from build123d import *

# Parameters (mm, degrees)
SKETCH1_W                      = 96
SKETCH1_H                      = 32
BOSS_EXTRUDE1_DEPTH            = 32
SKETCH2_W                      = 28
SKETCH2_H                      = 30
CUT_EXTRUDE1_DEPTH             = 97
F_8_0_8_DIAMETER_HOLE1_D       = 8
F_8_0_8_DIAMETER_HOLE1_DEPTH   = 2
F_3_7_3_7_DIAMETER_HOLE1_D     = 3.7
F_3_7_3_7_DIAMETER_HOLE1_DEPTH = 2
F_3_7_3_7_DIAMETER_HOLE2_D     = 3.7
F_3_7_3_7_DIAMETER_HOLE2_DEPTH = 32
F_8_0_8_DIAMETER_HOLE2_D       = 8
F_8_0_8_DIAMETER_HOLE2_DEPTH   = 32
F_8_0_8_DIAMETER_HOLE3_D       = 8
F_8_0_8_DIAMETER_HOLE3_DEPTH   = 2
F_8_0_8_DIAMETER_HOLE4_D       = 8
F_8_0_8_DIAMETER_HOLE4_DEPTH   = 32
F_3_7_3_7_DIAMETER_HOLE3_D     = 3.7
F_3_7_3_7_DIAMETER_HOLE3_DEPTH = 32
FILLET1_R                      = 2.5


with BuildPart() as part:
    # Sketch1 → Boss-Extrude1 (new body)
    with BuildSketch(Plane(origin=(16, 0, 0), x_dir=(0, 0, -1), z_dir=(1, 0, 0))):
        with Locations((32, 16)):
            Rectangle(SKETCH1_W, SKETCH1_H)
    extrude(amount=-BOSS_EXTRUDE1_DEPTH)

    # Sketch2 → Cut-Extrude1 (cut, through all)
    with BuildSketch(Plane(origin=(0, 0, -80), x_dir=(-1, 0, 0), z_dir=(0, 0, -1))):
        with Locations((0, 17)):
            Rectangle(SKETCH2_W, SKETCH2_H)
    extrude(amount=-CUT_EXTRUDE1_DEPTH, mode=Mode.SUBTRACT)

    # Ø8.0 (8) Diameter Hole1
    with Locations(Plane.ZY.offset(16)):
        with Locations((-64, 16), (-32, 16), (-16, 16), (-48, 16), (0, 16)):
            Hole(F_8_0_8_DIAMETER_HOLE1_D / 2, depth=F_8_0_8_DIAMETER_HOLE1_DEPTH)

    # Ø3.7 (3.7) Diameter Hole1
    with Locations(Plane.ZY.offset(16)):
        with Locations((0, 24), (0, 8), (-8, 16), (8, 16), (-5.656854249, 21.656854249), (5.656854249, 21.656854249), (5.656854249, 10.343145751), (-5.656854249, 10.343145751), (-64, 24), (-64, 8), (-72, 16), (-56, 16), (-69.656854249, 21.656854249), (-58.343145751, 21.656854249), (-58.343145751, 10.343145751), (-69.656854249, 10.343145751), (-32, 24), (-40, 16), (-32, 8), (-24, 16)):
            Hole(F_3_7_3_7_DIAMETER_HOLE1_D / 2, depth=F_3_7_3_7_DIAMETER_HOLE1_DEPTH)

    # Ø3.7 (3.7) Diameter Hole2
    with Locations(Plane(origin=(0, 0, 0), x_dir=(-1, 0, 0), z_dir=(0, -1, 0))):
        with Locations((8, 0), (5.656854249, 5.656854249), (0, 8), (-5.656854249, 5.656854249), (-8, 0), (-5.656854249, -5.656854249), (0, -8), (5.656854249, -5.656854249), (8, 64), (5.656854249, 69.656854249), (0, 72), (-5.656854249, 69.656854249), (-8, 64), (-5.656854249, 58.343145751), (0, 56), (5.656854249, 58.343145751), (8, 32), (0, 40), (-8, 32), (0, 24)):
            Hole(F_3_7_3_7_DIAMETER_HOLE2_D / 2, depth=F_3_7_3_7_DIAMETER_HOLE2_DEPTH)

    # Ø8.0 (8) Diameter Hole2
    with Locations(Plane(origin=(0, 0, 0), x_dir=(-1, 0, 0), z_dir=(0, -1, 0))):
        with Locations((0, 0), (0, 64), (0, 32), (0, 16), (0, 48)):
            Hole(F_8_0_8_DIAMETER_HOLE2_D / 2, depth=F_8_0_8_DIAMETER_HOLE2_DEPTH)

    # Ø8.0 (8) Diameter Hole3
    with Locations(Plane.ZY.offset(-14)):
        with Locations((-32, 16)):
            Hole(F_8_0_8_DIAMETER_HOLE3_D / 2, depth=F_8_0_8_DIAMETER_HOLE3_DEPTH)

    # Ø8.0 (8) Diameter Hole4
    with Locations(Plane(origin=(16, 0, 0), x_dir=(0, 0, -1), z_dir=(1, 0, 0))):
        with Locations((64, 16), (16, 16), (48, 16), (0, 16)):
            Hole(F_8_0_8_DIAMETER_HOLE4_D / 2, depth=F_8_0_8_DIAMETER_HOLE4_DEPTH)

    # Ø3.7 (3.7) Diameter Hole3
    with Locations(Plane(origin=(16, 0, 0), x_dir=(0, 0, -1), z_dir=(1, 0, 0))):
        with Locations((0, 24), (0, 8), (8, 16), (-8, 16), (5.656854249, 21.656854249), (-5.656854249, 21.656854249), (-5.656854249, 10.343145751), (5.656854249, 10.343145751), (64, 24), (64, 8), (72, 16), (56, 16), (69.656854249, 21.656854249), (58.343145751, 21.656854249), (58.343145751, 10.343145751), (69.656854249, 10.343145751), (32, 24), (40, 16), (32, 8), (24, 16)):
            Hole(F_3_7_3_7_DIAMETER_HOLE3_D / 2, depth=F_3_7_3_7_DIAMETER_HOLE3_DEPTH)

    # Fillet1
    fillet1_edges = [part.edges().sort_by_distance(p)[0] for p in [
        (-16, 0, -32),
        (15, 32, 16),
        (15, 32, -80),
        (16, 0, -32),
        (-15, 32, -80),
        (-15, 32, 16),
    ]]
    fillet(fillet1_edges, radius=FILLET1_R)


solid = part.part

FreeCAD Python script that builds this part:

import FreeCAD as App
import Part
import Sketcher

V = App.Vector
Q = App.Units.Quantity


def edges_at(feature, points):
    """Names of the edges that pass closest to the given points."""
    edges = feature.Shape.Edges
    near = lambda p: min(range(len(edges)), key=lambda i: edges[i].distToShape(Part.Vertex(*p))[0])
    return sorted({f"Edge{near(p) + 1}" for p in points})


def add_polygon(sketch, points):
    """Adds a closed chain of lines whose ends are joined by coincident constraints."""
    first, n = sketch.GeometryCount, len(points)
    for a, b in zip(points, points[1:] + points[:1]):
        sketch.addGeometry(Part.LineSegment(App.Vector(*a, 0), App.Vector(*b, 0)), False)
    for i in range(n):
        sketch.addConstraint(Sketcher.Constraint("Coincident", first + i, 2, first + (i + 1) % n, 1))

doc = App.newDocument("Part")
params = doc.addObject("Spreadsheet::Sheet", "Params")
for row, (alias, value) in enumerate([
    ("sketch1_width", "32 mm"),
    ("sketch1_height", "96 mm"),
    ("pad1_length", "32 mm"),
    ("sketch2_width", "28 mm"),
    ("sketch2_height", "30 mm"),
    ("sketch3_diameter", "8 mm"),
    ("hole_diameter", "8 mm"),
    ("hole_depth", "2 mm"),
    ("sketch4_diameter", "3.7 mm"),
    ("hole2_diameter", "3.7 mm"),
    ("hole2_depth", "2 mm"),
    ("sketch5_diameter", "3.7 mm"),
    ("hole3_diameter", "3.7 mm"),
    ("hole3_depth", "32 mm"),
    ("sketch6_diameter", "8 mm"),
    ("hole4_diameter", "8 mm"),
    ("hole4_depth", "32 mm"),
    ("sketch7_diameter", "8 mm"),
    ("hole5_diameter", "8 mm"),
    ("hole5_depth", "2 mm"),
    ("sketch8_diameter", "8 mm"),
    ("hole6_diameter", "8 mm"),
    ("hole6_depth", "32 mm"),
    ("sketch9_diameter", "3.7 mm"),
    ("hole7_diameter", "3.7 mm"),
    ("hole7_depth", "32 mm"),
    ("fillet_radius", "2.5 mm"),
], start=1):
    params.set(f"A{row}", alias)
    params.set(f"B{row}", "=" + value)
    params.setAlias(f"B{row}", alias)

body = doc.addObject("PartDesign::Body", "Body")

sketch1 = doc.addObject("Sketcher::SketchObject", "Sketch")
body.addObject(sketch1)
sketch1.AttachmentSupport = (doc.YZ_Plane, [""])
sketch1.MapMode = "FlatFace"
sketch1.AttachmentOffset = App.Placement(V(0, 0, 16), App.Rotation())
add_polygon(sketch1, [(32, 16), (0, 16), (0, -80), (32, -80)])
sketch1.addConstraint(Sketcher.Constraint("Horizontal", 0))
sketch1.addConstraint(Sketcher.Constraint("Vertical", 1))
sketch1.addConstraint(Sketcher.Constraint("Horizontal", 2))
sketch1.addConstraint(Sketcher.Constraint("Vertical", 3))
sketch1.addConstraint(Sketcher.Constraint("PointOnObject", 0, 2, -2))
sketch1.addConstraint(Sketcher.Constraint("DistanceX", 0, 2, 0, 1, Q("32 mm")))
sketch1.addConstraint(Sketcher.Constraint("DistanceY", 1, 2, 1, 1, Q("96 mm")))
sketch1.addConstraint(Sketcher.Constraint("DistanceY", -1, 1, 0, 2, Q("16 mm")))
sketch1.setExpression("Constraints[9]", "Params.sketch1_width")
sketch1.setExpression("Constraints[10]", "Params.sketch1_height")
pad1 = doc.addObject("PartDesign::Pad", "Pad")
body.addObject(pad1)
pad1.Profile = sketch1
pad1.setExpression("Length", "Params.pad1_length")
pad1.Reversed = True

sketch2 = doc.addObject("Sketcher::SketchObject", "Sketch001")
body.addObject(sketch2)
sketch2.AttachmentSupport = (doc.XY_Plane, [""])
sketch2.MapMode = "FlatFace"
sketch2.AttachmentOffset = App.Placement(V(0, 0, -80), App.Rotation())
add_polygon(sketch2, [(14, 32), (14, 2), (-14, 2), (-14, 32)])
sketch2.addConstraint(Sketcher.Constraint("Vertical", 0))
sketch2.addConstraint(Sketcher.Constraint("Horizontal", 1))
sketch2.addConstraint(Sketcher.Constraint("Vertical", 2))
sketch2.addConstraint(Sketcher.Constraint("Horizontal", 3))
sketch2.addConstraint(Sketcher.Constraint("DistanceX", 1, 2, 1, 1, Q("28 mm")))
sketch2.addConstraint(Sketcher.Constraint("DistanceY", 0, 2, 0, 1, Q("30 mm")))
sketch2.addConstraint(Sketcher.Constraint("DistanceX", -1, 1, 0, 2, Q("14 mm")))
sketch2.addConstraint(Sketcher.Constraint("DistanceY", -1, 1, 0, 2, Q("2 mm")))
sketch2.setExpression("Constraints[8]", "Params.sketch2_width")
sketch2.setExpression("Constraints[9]", "Params.sketch2_height")
pocket1 = doc.addObject("PartDesign::Pocket", "Pocket")
body.addObject(pocket1)
pocket1.Profile = sketch2
pocket1.Type = "ThroughAll"
pocket1.Reversed = True

sketch3 = doc.addObject("Sketcher::SketchObject", "Sketch002")
body.addObject(sketch3)
sketch3.AttachmentSupport = (doc.YZ_Plane, [""])
sketch3.MapMode = "FlatFace"
sketch3.AttachmentOffset = App.Placement(V(0, 0, -16), App.Rotation())
sketch3.addGeometry(Part.Circle(V(16, -64, 0), V(0, 0, 1), 4), False)
sketch3.addGeometry(Part.Circle(V(16, -32, 0), V(0, 0, 1), 4), False)
sketch3.addGeometry(Part.Circle(V(16, -16, 0), V(0, 0, 1), 4), False)
sketch3.addGeometry(Part.Circle(V(16, -48, 0), V(0, 0, 1), 4), False)
sketch3.addGeometry(Part.Circle(V(16, 0, 0), V(0, 0, 1), 4), False)
sketch3.addConstraint(Sketcher.Constraint("Equal", 0, 1))
sketch3.addConstraint(Sketcher.Constraint("Equal", 1, 2))
sketch3.addConstraint(Sketcher.Constraint("Equal", 2, 3))
sketch3.addConstraint(Sketcher.Constraint("Equal", 3, 4))
sketch3.addConstraint(Sketcher.Constraint("PointOnObject", 4, 3, -1))
sketch3.addConstraint(Sketcher.Constraint("Vertical", 0, 3, 1, 3))
sketch3.addConstraint(Sketcher.Constraint("Vertical", 1, 3, 2, 3))
sketch3.addConstraint(Sketcher.Constraint("Vertical", 2, 3, 3, 3))
sketch3.addConstraint(Sketcher.Constraint("Vertical", 3, 3, 4, 3))
sketch3.addConstraint(Sketcher.Constraint("Diameter", 0, Q("8 mm")))
sketch3.addConstraint(Sketcher.Constraint("DistanceX", -1, 1, 0, 3, Q("16 mm")))
sketch3.addConstraint(Sketcher.Constraint("DistanceY", 0, 3, -1, 1, Q("64 mm")))
sketch3.addConstraint(Sketcher.Constraint("DistanceY", 1, 3, -1, 1, Q("32 mm")))
sketch3.addConstraint(Sketcher.Constraint("DistanceY", 2, 3, -1, 1, Q("16 mm")))
sketch3.addConstraint(Sketcher.Constraint("DistanceY", 3, 3, -1, 1, Q("48 mm")))
sketch3.setExpression("Constraints[9]", "Params.sketch3_diameter")
doc.recompute()
hole = doc.addObject("PartDesign::Hole", "Hole")
body.addObject(hole)
hole.Profile = sketch3
hole.ThreadType = "None"
hole.setExpression("Diameter", "Params.hole_diameter")
hole.DepthType = "Dimension"
hole.setExpression("Depth", "Params.hole_depth")
hole.DrillPoint = "Flat"
hole.Reversed = True

sketch4 = doc.addObject("Sketcher::SketchObject", "Sketch003")
body.addObject(sketch4)
sketch4.AttachmentSupport = (doc.YZ_Plane, [""])
sketch4.MapMode = "FlatFace"
sketch4.AttachmentOffset = App.Placement(V(0, 0, -16), App.Rotation())
sketch4.addGeometry(Part.Circle(V(24, 0, 0), V(0, 0, 1), 1.85), False)
sketch4.addGeometry(Part.Circle(V(8, 0, 0), V(0, 0, 1), 1.85), False)
sketch4.addGeometry(Part.Circle(V(16, -8, 0), V(0, 0, 1), 1.85), False)
sketch4.addGeometry(Part.Circle(V(16, 8, 0), V(0, 0, 1), 1.85), False)
sketch4.addGeometry(Part.Circle(V(21.656854, -5.656854, 0), V(0, 0, 1), 1.85), False)
sketch4.addGeometry(Part.Circle(V(21.656854, 5.656854, 0), V(0, 0, 1), 1.85), False)
sketch4.addGeometry(Part.Circle(V(10.343146, 5.656854, 0), V(0, 0, 1), 1.85), False)
sketch4.addGeometry(Part.Circle(V(10.343146, -5.656854, 0), V(0, 0, 1), 1.85), False)
sketch4.addGeometry(Part.Circle(V(24, -64, 0), V(0, 0, 1), 1.85), False)
sketch4.addGeometry(Part.Circle(V(8, -64, 0), V(0, 0, 1), 1.85), False)
sketch4.addGeometry(Part.Circle(V(16, -72, 0), V(0, 0, 1), 1.85), False)
sketch4.addGeometry(Part.Circle(V(16, -56, 0), V(0, 0, 1), 1.85), False)
sketch4.addGeometry(Part.Circle(V(21.656854, -69.656854, 0), V(0, 0, 1), 1.85), False)
sketch4.addGeometry(Part.Circle(V(21.656854, -58.343146, 0), V(0, 0, 1), 1.85), False)
sketch4.addGeometry(Part.Circle(V(10.343146, -58.343146, 0), V(0, 0, 1), 1.85), False)
sketch4.addGeometry(Part.Circle(V(10.343146, -69.656854, 0), V(0, 0, 1), 1.85), False)
sketch4.addGeometry(Part.Circle(V(24, -32, 0), V(0, 0, 1), 1.85), False)
sketch4.addGeometry(Part.Circle(V(16, -40, 0), V(0, 0, 1), 1.85), False)
sketch4.addGeometry(Part.Circle(V(8, -32, 0), V(0, 0, 1), 1.85), False)
sketch4.addGeometry(Part.Circle(V(16, -24, 0), V(0, 0, 1), 1.85), False)
sketch4.addConstraint(Sketcher.Constraint("Equal", 0, 1))
sketch4.addConstraint(Sketcher.Constraint("Equal", 1, 2))
sketch4.addConstraint(Sketcher.Constraint("Equal", 2, 3))
sketch4.addConstraint(Sketcher.Constraint("Equal", 3, 4))
sketch4.addConstraint(Sketcher.Constraint("Equal", 4, 5))
sketch4.addConstraint(Sketcher.Constraint("Equal", 5, 6))
sketch4.addConstraint(Sketcher.Constraint("Equal", 6, 7))
sketch4.addConstraint(Sketcher.Constraint("Equal", 7, 8))
sketch4.addConstraint(Sketcher.Constraint("Equal", 8, 9))
sketch4.addConstraint(Sketcher.Constraint("Equal", 9, 10))
sketch4.addConstraint(Sketcher.Constraint("Equal", 10, 11))
sketch4.addConstraint(Sketcher.Constraint("Equal", 11, 12))
sketch4.addConstraint(Sketcher.Constraint("Equal", 12, 13))
sketch4.addConstraint(Sketcher.Constraint("Equal", 13, 14))
sketch4.addConstraint(Sketcher.Constraint("Equal", 14, 15))
sketch4.addConstraint(Sketcher.Constraint("Equal", 15, 16))
sketch4.addConstraint(Sketcher.Constraint("Equal", 16, 17))
sketch4.addConstraint(Sketcher.Constraint("Equal", 17, 18))
sketch4.addConstraint(Sketcher.Constraint("Equal", 18, 19))
sketch4.addConstraint(Sketcher.Constraint("Symmetric", 2, 3, 3, 3, -1))
sketch4.addConstraint(Sketcher.Constraint("Symmetric", 4, 3, 5, 3, -1))
sketch4.addConstraint(Sketcher.Constraint("Symmetric", 6, 3, 7, 3, -1))
sketch4.addConstraint(Sketcher.Constraint("PointOnObject", 0, 3, -1))
sketch4.addConstraint(Sketcher.Constraint("PointOnObject", 1, 3, -1))
sketch4.addConstraint(Sketcher.Constraint("Horizontal", 5, 3, 6, 3))
sketch4.addConstraint(Sketcher.Constraint("Horizontal", 8, 3, 9, 3))
sketch4.addConstraint(Sketcher.Constraint("Horizontal", 13, 3, 14, 3))
sketch4.addConstraint(Sketcher.Constraint("Horizontal", 12, 3, 15, 3))
sketch4.addConstraint(Sketcher.Constraint("Horizontal", 16, 3, 18, 3))
sketch4.addConstraint(Sketcher.Constraint("Vertical", 0, 3, 8, 3))
sketch4.addConstraint(Sketcher.Constraint("Vertical", 1, 3, 9, 3))
sketch4.addConstraint(Sketcher.Constraint("Vertical", 3, 3, 10, 3))
sketch4.addConstraint(Sketcher.Constraint("Vertical", 10, 3, 11, 3))
sketch4.addConstraint(Sketcher.Constraint("Vertical", 5, 3, 12, 3))
sketch4.addConstraint(Sketcher.Constraint("Vertical", 12, 3, 13, 3))
sketch4.addConstraint(Sketcher.Constraint("Vertical", 7, 3, 14, 3))
sketch4.addConstraint(Sketcher.Constraint("Vertical", 14, 3, 15, 3))
sketch4.addConstraint(Sketcher.Constraint("Vertical", 8, 3, 16, 3))
sketch4.addConstraint(Sketcher.Constraint("Vertical", 11, 3, 17, 3))
sketch4.addConstraint(Sketcher.Constraint("Vertical", 9, 3, 18, 3))
sketch4.addConstraint(Sketcher.Constraint("Vertical", 17, 3, 19, 3))
sketch4.addConstraint(Sketcher.Constraint("Diameter", 0, Q("3.7 mm")))
sketch4.addConstraint(Sketcher.Constraint("DistanceX", -1, 1, 0, 3, Q("24 mm")))
sketch4.addConstraint(Sketcher.Constraint("DistanceX", -1, 1, 1, 3, Q("8 mm")))
sketch4.addConstraint(Sketcher.Constraint("DistanceX", -1, 1, 2, 3, Q("16 mm")))
sketch4.addConstraint(Sketcher.Constraint("DistanceY", 2, 3, -1, 1, Q("8 mm")))
sketch4.addConstraint(Sketcher.Constraint("DistanceY", 8, 3, -1, 1, Q("64 mm")))
sketch4.addConstraint(Sketcher.Constraint("DistanceY", 10, 3, -1, 1, Q("72 mm")))
sketch4.addConstraint(Sketcher.Constraint("DistanceY", 11, 3, -1, 1, Q("56 mm")))
sketch4.addConstraint(Sketcher.Constraint("DistanceY", 16, 3, -1, 1, Q("32 mm")))
sketch4.addConstraint(Sketcher.Constraint("DistanceY", 17, 3, -1, 1, Q("40 mm")))
sketch4.addConstraint(Sketcher.Constraint("DistanceY", 19, 3, -1, 1, Q("24 mm")))
sketch4.addConstraint(Sketcher.Constraint("DistanceY", 4, 3, 5, 3, Q("11.313708 mm")))
sketch4.addConstraint(Sketcher.Constraint("DistanceX", 6, 3, 5, 3, Q("11.313708 mm")))
sketch4.addConstraint(Sketcher.Constraint("DistanceY", 12, 3, 13, 3, Q("11.313708 mm")))
sketch4.addConstraint(Sketcher.Constraint("DistanceX", -1, 1, 4, 3, Q("21.656854 mm")))
sketch4.addConstraint(Sketcher.Constraint("DistanceY", 12, 3, -1, 1, Q("69.656854 mm")))
sketch4.setExpression("Constraints[41]", "Params.sketch4_diameter")
doc.recompute()
hole2 = doc.addObject("PartDesign::Hole", "Hole001")
body.addObject(hole2)
hole2.Profile = sketch4
hole2.ThreadType = "None"
hole2.setExpression("Diameter", "Params.hole2_diameter")
hole2.DepthType = "Dimension"
hole2.setExpression("Depth", "Params.hole2_depth")
hole2.DrillPoint = "Flat"
hole2.Reversed = True

sketch5 = doc.addObject("Sketcher::SketchObject", "Sketch004")
body.addObject(sketch5)
sketch5.AttachmentSupport = (doc.XZ_Plane, [""])
sketch5.MapMode = "FlatFace"
sketch5.addGeometry(Part.Circle(V(-8, 0, 0), V(0, 0, 1), 1.85), False)
sketch5.addGeometry(Part.Circle(V(-5.656854, -5.656854, 0), V(0, 0, 1), 1.85), False)
sketch5.addGeometry(Part.Circle(V(0, -8, 0), V(0, 0, 1), 1.85), False)
sketch5.addGeometry(Part.Circle(V(5.656854, -5.656854, 0), V(0, 0, 1), 1.85), False)
sketch5.addGeometry(Part.Circle(V(8, 0, 0), V(0, 0, 1), 1.85), False)
sketch5.addGeometry(Part.Circle(V(5.656854, 5.656854, 0), V(0, 0, 1), 1.85), False)
sketch5.addGeometry(Part.Circle(V(0, 8, 0), V(0, 0, 1), 1.85), False)
sketch5.addGeometry(Part.Circle(V(-5.656854, 5.656854, 0), V(0, 0, 1), 1.85), False)
sketch5.addGeometry(Part.Circle(V(-8, -64, 0), V(0, 0, 1), 1.85), False)
sketch5.addGeometry(Part.Circle(V(-5.656854, -69.656854, 0), V(0, 0, 1), 1.85), False)
sketch5.addGeometry(Part.Circle(V(0, -72, 0), V(0, 0, 1), 1.85), False)
sketch5.addGeometry(Part.Circle(V(5.656854, -69.656854, 0), V(0, 0, 1), 1.85), False)
sketch5.addGeometry(Part.Circle(V(8, -64, 0), V(0, 0, 1), 1.85), False)
sketch5.addGeometry(Part.Circle(V(5.656854, -58.343146, 0), V(0, 0, 1), 1.85), False)
sketch5.addGeometry(Part.Circle(V(0, -56, 0), V(0, 0, 1), 1.85), False)
sketch5.addGeometry(Part.Circle(V(-5.656854, -58.343146, 0), V(0, 0, 1), 1.85), False)
sketch5.addGeometry(Part.Circle(V(-8, -32, 0), V(0, 0, 1), 1.85), False)
sketch5.addGeometry(Part.Circle(V(0, -40, 0), V(0, 0, 1), 1.85), False)
sketch5.addGeometry(Part.Circle(V(8, -32, 0), V(0, 0, 1), 1.85), False)
sketch5.addGeometry(Part.Circle(V(0, -24, 0), V(0, 0, 1), 1.85), False)
sketch5.addConstraint(Sketcher.Constraint("Equal", 0, 1))
sketch5.addConstraint(Sketcher.Constraint("Equal", 1, 2))
sketch5.addConstraint(Sketcher.Constraint("Equal", 2, 3))
sketch5.addConstraint(Sketcher.Constraint("Equal", 3, 4))
sketch5.addConstraint(Sketcher.Constraint("Equal", 4, 5))
sketch5.addConstraint(Sketcher.Constraint("Equal", 5, 6))
sketch5.addConstraint(Sketcher.Constraint("Equal", 6, 7))
sketch5.addConstraint(Sketcher.Constraint("Equal", 7, 8))
sketch5.addConstraint(Sketcher.Constraint("Equal", 8, 9))
sketch5.addConstraint(Sketcher.Constraint("Equal", 9, 10))
sketch5.addConstraint(Sketcher.Constraint("Equal", 10, 11))
sketch5.addConstraint(Sketcher.Constraint("Equal", 11, 12))
sketch5.addConstraint(Sketcher.Constraint("Equal", 12, 13))
sketch5.addConstraint(Sketcher.Constraint("Equal", 13, 14))
sketch5.addConstraint(Sketcher.Constraint("Equal", 14, 15))
sketch5.addConstraint(Sketcher.Constraint("Equal", 15, 16))
sketch5.addConstraint(Sketcher.Constraint("Equal", 16, 17))
sketch5.addConstraint(Sketcher.Constraint("Equal", 17, 18))
sketch5.addConstraint(Sketcher.Constraint("Equal", 18, 19))
sketch5.addConstraint(Sketcher.Constraint("Symmetric", 0, 3, 4, 3, -1, 1))
sketch5.addConstraint(Sketcher.Constraint("Symmetric", 1, 3, 5, 3, -1, 1))
sketch5.addConstraint(Sketcher.Constraint("Symmetric", 2, 3, 6, 3, -1, 1))
sketch5.addConstraint(Sketcher.Constraint("Symmetric", 3, 3, 7, 3, -1, 1))
sketch5.addConstraint(Sketcher.Constraint("Symmetric", 1, 3, 3, 3, -2))
sketch5.addConstraint(Sketcher.Constraint("Symmetric", 9, 3, 11, 3, -2))
sketch5.addConstraint(Sketcher.Constraint("Symmetric", 8, 3, 12, 3, -2))
sketch5.addConstraint(Sketcher.Constraint("Symmetric", 13, 3, 15, 3, -2))
sketch5.addConstraint(Sketcher.Constraint("Symmetric", 16, 3, 18, 3, -2))
sketch5.addConstraint(Sketcher.Constraint("PointOnObject", 0, 3, -1))
sketch5.addConstraint(Sketcher.Constraint("PointOnObject", 2, 3, -2))
sketch5.addConstraint(Sketcher.Constraint("PointOnObject", 10, 3, -2))
sketch5.addConstraint(Sketcher.Constraint("PointOnObject", 14, 3, -2))
sketch5.addConstraint(Sketcher.Constraint("PointOnObject", 17, 3, -2))
sketch5.addConstraint(Sketcher.Constraint("PointOnObject", 19, 3, -2))
sketch5.addConstraint(Sketcher.Constraint("Vertical", 0, 3, 8, 3))
sketch5.addConstraint(Sketcher.Constraint("Vertical", 7, 3, 9, 3))
sketch5.addConstraint(Sketcher.Constraint("Vertical", 11, 3, 13, 3))
sketch5.addConstraint(Sketcher.Constraint("Vertical", 8, 3, 16, 3))
sketch5.addConstraint(Sketcher.Constraint("Diameter", 0, Q("3.7 mm")))
sketch5.addConstraint(Sketcher.Constraint("DistanceX", 0, 3, -1, 1, Q("8 mm")))
sketch5.addConstraint(Sketcher.Constraint("DistanceY", 2, 3, -1, 1, Q("8 mm")))
sketch5.addConstraint(Sketcher.Constraint("DistanceY", 8, 3, -1, 1, Q("64 mm")))
sketch5.addConstraint(Sketcher.Constraint("DistanceY", 10, 3, -1, 1, Q("72 mm")))
sketch5.addConstraint(Sketcher.Constraint("DistanceY", 14, 3, -1, 1, Q("56 mm")))
sketch5.addConstraint(Sketcher.Constraint("DistanceY", 16, 3, -1, 1, Q("32 mm")))
sketch5.addConstraint(Sketcher.Constraint("DistanceY", 17, 3, -1, 1, Q("40 mm")))
sketch5.addConstraint(Sketcher.Constraint("DistanceY", 19, 3, -1, 1, Q("24 mm")))
sketch5.addConstraint(Sketcher.Constraint("DistanceY", 9, 3, 1, 3, Q("64 mm")))
sketch5.addConstraint(Sketcher.Constraint("DistanceX", 1, 3, 3, 3, Q("11.313708 mm")))
sketch5.addConstraint(Sketcher.Constraint("DistanceY", 3, 3, 5, 3, Q("11.313708 mm")))
sketch5.addConstraint(Sketcher.Constraint("DistanceY", 11, 3, 13, 3, Q("11.313708 mm")))
sketch5.setExpression("Constraints[38]", "Params.sketch5_diameter")
doc.recompute()
hole3 = doc.addObject("PartDesign::Hole", "Hole002")
body.addObject(hole3)
hole3.Profile = sketch5
hole3.ThreadType = "None"
hole3.setExpression("Diameter", "Params.hole3_diameter")
hole3.DepthType = "Dimension"
hole3.setExpression("Depth", "Params.hole3_depth")
hole3.DrillPoint = "Flat"

sketch6 = doc.addObject("Sketcher::SketchObject", "Sketch005")
body.addObject(sketch6)
sketch6.AttachmentSupport = (doc.XZ_Plane, [""])
sketch6.MapMode = "FlatFace"
sketch6.addGeometry(Part.Circle(V(0, 0, 0), V(0, 0, 1), 4), False)
sketch6.addGeometry(Part.Circle(V(0, -64, 0), V(0, 0, 1), 4), False)
sketch6.addGeometry(Part.Circle(V(0, -32, 0), V(0, 0, 1), 4), False)
sketch6.addGeometry(Part.Circle(V(0, -16, 0), V(0, 0, 1), 4), False)
sketch6.addGeometry(Part.Circle(V(0, -48, 0), V(0, 0, 1), 4), False)
sketch6.addConstraint(Sketcher.Constraint("Coincident", 0, 3, -1, 1))
sketch6.addConstraint(Sketcher.Constraint("Equal", 0, 1))
sketch6.addConstraint(Sketcher.Constraint("Equal", 1, 2))
sketch6.addConstraint(Sketcher.Constraint("Equal", 2, 3))
sketch6.addConstraint(Sketcher.Constraint("Equal", 3, 4))
sketch6.addConstraint(Sketcher.Constraint("PointOnObject", 1, 3, -2))
sketch6.addConstraint(Sketcher.Constraint("PointOnObject", 2, 3, -2))
sketch6.addConstraint(Sketcher.Constraint("PointOnObject", 3, 3, -2))
sketch6.addConstraint(Sketcher.Constraint("PointOnObject", 4, 3, -2))
sketch6.addConstraint(Sketcher.Constraint("Diameter", 0, Q("8 mm")))
sketch6.addConstraint(Sketcher.Constraint("DistanceY", 1, 3, -1, 1, Q("64 mm")))
sketch6.addConstraint(Sketcher.Constraint("DistanceY", 2, 3, -1, 1, Q("32 mm")))
sketch6.addConstraint(Sketcher.Constraint("DistanceY", 3, 3, -1, 1, Q("16 mm")))
sketch6.addConstraint(Sketcher.Constraint("DistanceY", 4, 3, -1, 1, Q("48 mm")))
sketch6.setExpression("Constraints[9]", "Params.sketch6_diameter")
doc.recompute()
hole4 = doc.addObject("PartDesign::Hole", "Hole003")
body.addObject(hole4)
hole4.Profile = sketch6
hole4.ThreadType = "None"
hole4.setExpression("Diameter", "Params.hole4_diameter")
hole4.DepthType = "Dimension"
hole4.setExpression("Depth", "Params.hole4_depth")
hole4.DrillPoint = "Flat"

sketch7 = doc.addObject("Sketcher::SketchObject", "Sketch006")
body.addObject(sketch7)
sketch7.AttachmentSupport = (doc.YZ_Plane, [""])
sketch7.MapMode = "FlatFace"
sketch7.AttachmentOffset = App.Placement(V(0, 0, 14), App.Rotation())
sketch7.addGeometry(Part.Circle(V(16, -32, 0), V(0, 0, 1), 4), False)
sketch7.addConstraint(Sketcher.Constraint("Diameter", 0, Q("8 mm")))
sketch7.addConstraint(Sketcher.Constraint("DistanceX", -1, 1, 0, 3, Q("16 mm")))
sketch7.addConstraint(Sketcher.Constraint("DistanceY", 0, 3, -1, 1, Q("32 mm")))
sketch7.setExpression("Constraints[0]", "Params.sketch7_diameter")
doc.recompute()
hole5 = doc.addObject("PartDesign::Hole", "Hole004")
body.addObject(hole5)
hole5.Profile = sketch7
hole5.ThreadType = "None"
hole5.setExpression("Diameter", "Params.hole5_diameter")
hole5.DepthType = "Dimension"
hole5.setExpression("Depth", "Params.hole5_depth")
hole5.DrillPoint = "Flat"
hole5.Reversed = True

sketch8 = doc.addObject("Sketcher::SketchObject", "Sketch007")
body.addObject(sketch8)
sketch8.AttachmentSupport = (doc.YZ_Plane, [""])
sketch8.MapMode = "FlatFace"
sketch8.AttachmentOffset = App.Placement(V(0, 0, 16), App.Rotation())
sketch8.addGeometry(Part.Circle(V(16, -64, 0), V(0, 0, 1), 4), False)
sketch8.addGeometry(Part.Circle(V(16, -16, 0), V(0, 0, 1), 4), False)
sketch8.addGeometry(Part.Circle(V(16, -48, 0), V(0, 0, 1), 4), False)
sketch8.addGeometry(Part.Circle(V(16, 0, 0), V(0, 0, 1), 4), False)
sketch8.addConstraint(Sketcher.Constraint("Equal", 0, 1))
sketch8.addConstraint(Sketcher.Constraint("Equal", 1, 2))
sketch8.addConstraint(Sketcher.Constraint("Equal", 2, 3))
sketch8.addConstraint(Sketcher.Constraint("PointOnObject", 3, 3, -1))
sketch8.addConstraint(Sketcher.Constraint("Vertical", 0, 3, 1, 3))
sketch8.addConstraint(Sketcher.Constraint("Vertical", 1, 3, 2, 3))
sketch8.addConstraint(Sketcher.Constraint("Vertical", 2, 3, 3, 3))
sketch8.addConstraint(Sketcher.Constraint("Diameter", 0, Q("8 mm")))
sketch8.addConstraint(Sketcher.Constraint("DistanceX", -1, 1, 0, 3, Q("16 mm")))
sketch8.addConstraint(Sketcher.Constraint("DistanceY", 0, 3, -1, 1, Q("64 mm")))
sketch8.addConstraint(Sketcher.Constraint("DistanceY", 1, 3, -1, 1, Q("16 mm")))
sketch8.addConstraint(Sketcher.Constraint("DistanceY", 2, 3, -1, 1, Q("48 mm")))
sketch8.setExpression("Constraints[7]", "Params.sketch8_diameter")
doc.recompute()
hole6 = doc.addObject("PartDesign::Hole", "Hole005")
body.addObject(hole6)
hole6.Profile = sketch8
hole6.ThreadType = "None"
hole6.setExpression("Diameter", "Params.hole6_diameter")
hole6.DepthType = "Dimension"
hole6.setExpression("Depth", "Params.hole6_depth")
hole6.DrillPoint = "Flat"

sketch9 = doc.addObject("Sketcher::SketchObject", "Sketch008")
body.addObject(sketch9)
sketch9.AttachmentSupport = (doc.YZ_Plane, [""])
sketch9.MapMode = "FlatFace"
sketch9.AttachmentOffset = App.Placement(V(0, 0, 16), App.Rotation())
sketch9.addGeometry(Part.Circle(V(24, 0, 0), V(0, 0, 1), 1.85), False)
sketch9.addGeometry(Part.Circle(V(8, 0, 0), V(0, 0, 1), 1.85), False)
sketch9.addGeometry(Part.Circle(V(16, -8, 0), V(0, 0, 1), 1.85), False)
sketch9.addGeometry(Part.Circle(V(16, 8, 0), V(0, 0, 1), 1.85), False)
sketch9.addGeometry(Part.Circle(V(21.656854, -5.656854, 0), V(0, 0, 1), 1.85), False)
sketch9.addGeometry(Part.Circle(V(21.656854, 5.656854, 0), V(0, 0, 1), 1.85), False)
sketch9.addGeometry(Part.Circle(V(10.343146, 5.656854, 0), V(0, 0, 1), 1.85), False)
sketch9.addGeometry(Part.Circle(V(10.343146, -5.656854, 0), V(0, 0, 1), 1.85), False)
sketch9.addGeometry(Part.Circle(V(24, -64, 0), V(0, 0, 1), 1.85), False)
sketch9.addGeometry(Part.Circle(V(8, -64, 0), V(0, 0, 1), 1.85), False)
sketch9.addGeometry(Part.Circle(V(16, -72, 0), V(0, 0, 1), 1.85), False)
sketch9.addGeometry(Part.Circle(V(16, -56, 0), V(0, 0, 1), 1.85), False)
sketch9.addGeometry(Part.Circle(V(21.656854, -69.656854, 0), V(0, 0, 1), 1.85), False)
sketch9.addGeometry(Part.Circle(V(21.656854, -58.343146, 0), V(0, 0, 1), 1.85), False)
sketch9.addGeometry(Part.Circle(V(10.343146, -58.343146, 0), V(0, 0, 1), 1.85), False)
sketch9.addGeometry(Part.Circle(V(10.343146, -69.656854, 0), V(0, 0, 1), 1.85), False)
sketch9.addGeometry(Part.Circle(V(24, -32, 0), V(0, 0, 1), 1.85), False)
sketch9.addGeometry(Part.Circle(V(16, -40, 0), V(0, 0, 1), 1.85), False)
sketch9.addGeometry(Part.Circle(V(8, -32, 0), V(0, 0, 1), 1.85), False)
sketch9.addGeometry(Part.Circle(V(16, -24, 0), V(0, 0, 1), 1.85), False)
sketch9.addConstraint(Sketcher.Constraint("Equal", 0, 1))
sketch9.addConstraint(Sketcher.Constraint("Equal", 1, 2))
sketch9.addConstraint(Sketcher.Constraint("Equal", 2, 3))
sketch9.addConstraint(Sketcher.Constraint("Equal", 3, 4))
sketch9.addConstraint(Sketcher.Constraint("Equal", 4, 5))
sketch9.addConstraint(Sketcher.Constraint("Equal", 5, 6))
sketch9.addConstraint(Sketcher.Constraint("Equal", 6, 7))
sketch9.addConstraint(Sketcher.Constraint("Equal", 7, 8))
sketch9.addConstraint(Sketcher.Constraint("Equal", 8, 9))
sketch9.addConstraint(Sketcher.Constraint("Equal", 9, 10))
sketch9.addConstraint(Sketcher.Constraint("Equal", 10, 11))
sketch9.addConstraint(Sketcher.Constraint("Equal", 11, 12))
sketch9.addConstraint(Sketcher.Constraint("Equal", 12, 13))
sketch9.addConstraint(Sketcher.Constraint("Equal", 13, 14))
sketch9.addConstraint(Sketcher.Constraint("Equal", 14, 15))
sketch9.addConstraint(Sketcher.Constraint("Equal", 15, 16))
sketch9.addConstraint(Sketcher.Constraint("Equal", 16, 17))
sketch9.addConstraint(Sketcher.Constraint("Equal", 17, 18))
sketch9.addConstraint(Sketcher.Constraint("Equal", 18, 19))
sketch9.addConstraint(Sketcher.Constraint("Symmetric", 2, 3, 3, 3, -1))
sketch9.addConstraint(Sketcher.Constraint("Symmetric", 4, 3, 5, 3, -1))
sketch9.addConstraint(Sketcher.Constraint("Symmetric", 6, 3, 7, 3, -1))
sketch9.addConstraint(Sketcher.Constraint("PointOnObject", 0, 3, -1))
sketch9.addConstraint(Sketcher.Constraint("PointOnObject", 1, 3, -1))
sketch9.addConstraint(Sketcher.Constraint("Horizontal", 5, 3, 6, 3))
sketch9.addConstraint(Sketcher.Constraint("Horizontal", 8, 3, 9, 3))
sketch9.addConstraint(Sketcher.Constraint("Horizontal", 13, 3, 14, 3))
sketch9.addConstraint(Sketcher.Constraint("Horizontal", 12, 3, 15, 3))
sketch9.addConstraint(Sketcher.Constraint("Horizontal", 16, 3, 18, 3))
sketch9.addConstraint(Sketcher.Constraint("Vertical", 0, 3, 8, 3))
sketch9.addConstraint(Sketcher.Constraint("Vertical", 1, 3, 9, 3))
sketch9.addConstraint(Sketcher.Constraint("Vertical", 3, 3, 10, 3))
sketch9.addConstraint(Sketcher.Constraint("Vertical", 10, 3, 11, 3))
sketch9.addConstraint(Sketcher.Constraint("Vertical", 5, 3, 12, 3))
sketch9.addConstraint(Sketcher.Constraint("Vertical", 12, 3, 13, 3))
sketch9.addConstraint(Sketcher.Constraint("Vertical", 7, 3, 14, 3))
sketch9.addConstraint(Sketcher.Constraint("Vertical", 14, 3, 15, 3))
sketch9.addConstraint(Sketcher.Constraint("Vertical", 8, 3, 16, 3))
sketch9.addConstraint(Sketcher.Constraint("Vertical", 11, 3, 17, 3))
sketch9.addConstraint(Sketcher.Constraint("Vertical", 9, 3, 18, 3))
sketch9.addConstraint(Sketcher.Constraint("Vertical", 17, 3, 19, 3))
sketch9.addConstraint(Sketcher.Constraint("Diameter", 0, Q("3.7 mm")))
sketch9.addConstraint(Sketcher.Constraint("DistanceX", -1, 1, 0, 3, Q("24 mm")))
sketch9.addConstraint(Sketcher.Constraint("DistanceX", -1, 1, 1, 3, Q("8 mm")))
sketch9.addConstraint(Sketcher.Constraint("DistanceX", -1, 1, 2, 3, Q("16 mm")))
sketch9.addConstraint(Sketcher.Constraint("DistanceY", 2, 3, -1, 1, Q("8 mm")))
sketch9.addConstraint(Sketcher.Constraint("DistanceY", 8, 3, -1, 1, Q("64 mm")))
sketch9.addConstraint(Sketcher.Constraint("DistanceY", 10, 3, -1, 1, Q("72 mm")))
sketch9.addConstraint(Sketcher.Constraint("DistanceY", 11, 3, -1, 1, Q("56 mm")))
sketch9.addConstraint(Sketcher.Constraint("DistanceY", 16, 3, -1, 1, Q("32 mm")))
sketch9.addConstraint(Sketcher.Constraint("DistanceY", 17, 3, -1, 1, Q("40 mm")))
sketch9.addConstraint(Sketcher.Constraint("DistanceY", 19, 3, -1, 1, Q("24 mm")))
sketch9.addConstraint(Sketcher.Constraint("DistanceY", 4, 3, 5, 3, Q("11.313708 mm")))
sketch9.addConstraint(Sketcher.Constraint("DistanceX", 6, 3, 5, 3, Q("11.313708 mm")))
sketch9.addConstraint(Sketcher.Constraint("DistanceY", 12, 3, 13, 3, Q("11.313708 mm")))
sketch9.addConstraint(Sketcher.Constraint("DistanceX", -1, 1, 4, 3, Q("21.656854 mm")))
sketch9.addConstraint(Sketcher.Constraint("DistanceY", 12, 3, -1, 1, Q("69.656854 mm")))
sketch9.setExpression("Constraints[41]", "Params.sketch9_diameter")
doc.recompute()
hole7 = doc.addObject("PartDesign::Hole", "Hole006")
body.addObject(hole7)
hole7.Profile = sketch9
hole7.ThreadType = "None"
hole7.setExpression("Diameter", "Params.hole7_diameter")
hole7.DepthType = "Dimension"
hole7.setExpression("Depth", "Params.hole7_depth")
hole7.DrillPoint = "Flat"
doc.recompute()

fillet = doc.addObject("PartDesign::Fillet", "Fillet")
body.addObject(fillet)
fillet.Base = (hole7, edges_at(hole7, [
    (-16, 0, -32),
    (15, 32, 16),
    (15, 32, -80),
    (16, 0, -32),
    (-15, 32, -80),
    (-15, 32, 16),
]))
fillet.setExpression("Radius", "Params.fillet_radius")

doc.recompute()
